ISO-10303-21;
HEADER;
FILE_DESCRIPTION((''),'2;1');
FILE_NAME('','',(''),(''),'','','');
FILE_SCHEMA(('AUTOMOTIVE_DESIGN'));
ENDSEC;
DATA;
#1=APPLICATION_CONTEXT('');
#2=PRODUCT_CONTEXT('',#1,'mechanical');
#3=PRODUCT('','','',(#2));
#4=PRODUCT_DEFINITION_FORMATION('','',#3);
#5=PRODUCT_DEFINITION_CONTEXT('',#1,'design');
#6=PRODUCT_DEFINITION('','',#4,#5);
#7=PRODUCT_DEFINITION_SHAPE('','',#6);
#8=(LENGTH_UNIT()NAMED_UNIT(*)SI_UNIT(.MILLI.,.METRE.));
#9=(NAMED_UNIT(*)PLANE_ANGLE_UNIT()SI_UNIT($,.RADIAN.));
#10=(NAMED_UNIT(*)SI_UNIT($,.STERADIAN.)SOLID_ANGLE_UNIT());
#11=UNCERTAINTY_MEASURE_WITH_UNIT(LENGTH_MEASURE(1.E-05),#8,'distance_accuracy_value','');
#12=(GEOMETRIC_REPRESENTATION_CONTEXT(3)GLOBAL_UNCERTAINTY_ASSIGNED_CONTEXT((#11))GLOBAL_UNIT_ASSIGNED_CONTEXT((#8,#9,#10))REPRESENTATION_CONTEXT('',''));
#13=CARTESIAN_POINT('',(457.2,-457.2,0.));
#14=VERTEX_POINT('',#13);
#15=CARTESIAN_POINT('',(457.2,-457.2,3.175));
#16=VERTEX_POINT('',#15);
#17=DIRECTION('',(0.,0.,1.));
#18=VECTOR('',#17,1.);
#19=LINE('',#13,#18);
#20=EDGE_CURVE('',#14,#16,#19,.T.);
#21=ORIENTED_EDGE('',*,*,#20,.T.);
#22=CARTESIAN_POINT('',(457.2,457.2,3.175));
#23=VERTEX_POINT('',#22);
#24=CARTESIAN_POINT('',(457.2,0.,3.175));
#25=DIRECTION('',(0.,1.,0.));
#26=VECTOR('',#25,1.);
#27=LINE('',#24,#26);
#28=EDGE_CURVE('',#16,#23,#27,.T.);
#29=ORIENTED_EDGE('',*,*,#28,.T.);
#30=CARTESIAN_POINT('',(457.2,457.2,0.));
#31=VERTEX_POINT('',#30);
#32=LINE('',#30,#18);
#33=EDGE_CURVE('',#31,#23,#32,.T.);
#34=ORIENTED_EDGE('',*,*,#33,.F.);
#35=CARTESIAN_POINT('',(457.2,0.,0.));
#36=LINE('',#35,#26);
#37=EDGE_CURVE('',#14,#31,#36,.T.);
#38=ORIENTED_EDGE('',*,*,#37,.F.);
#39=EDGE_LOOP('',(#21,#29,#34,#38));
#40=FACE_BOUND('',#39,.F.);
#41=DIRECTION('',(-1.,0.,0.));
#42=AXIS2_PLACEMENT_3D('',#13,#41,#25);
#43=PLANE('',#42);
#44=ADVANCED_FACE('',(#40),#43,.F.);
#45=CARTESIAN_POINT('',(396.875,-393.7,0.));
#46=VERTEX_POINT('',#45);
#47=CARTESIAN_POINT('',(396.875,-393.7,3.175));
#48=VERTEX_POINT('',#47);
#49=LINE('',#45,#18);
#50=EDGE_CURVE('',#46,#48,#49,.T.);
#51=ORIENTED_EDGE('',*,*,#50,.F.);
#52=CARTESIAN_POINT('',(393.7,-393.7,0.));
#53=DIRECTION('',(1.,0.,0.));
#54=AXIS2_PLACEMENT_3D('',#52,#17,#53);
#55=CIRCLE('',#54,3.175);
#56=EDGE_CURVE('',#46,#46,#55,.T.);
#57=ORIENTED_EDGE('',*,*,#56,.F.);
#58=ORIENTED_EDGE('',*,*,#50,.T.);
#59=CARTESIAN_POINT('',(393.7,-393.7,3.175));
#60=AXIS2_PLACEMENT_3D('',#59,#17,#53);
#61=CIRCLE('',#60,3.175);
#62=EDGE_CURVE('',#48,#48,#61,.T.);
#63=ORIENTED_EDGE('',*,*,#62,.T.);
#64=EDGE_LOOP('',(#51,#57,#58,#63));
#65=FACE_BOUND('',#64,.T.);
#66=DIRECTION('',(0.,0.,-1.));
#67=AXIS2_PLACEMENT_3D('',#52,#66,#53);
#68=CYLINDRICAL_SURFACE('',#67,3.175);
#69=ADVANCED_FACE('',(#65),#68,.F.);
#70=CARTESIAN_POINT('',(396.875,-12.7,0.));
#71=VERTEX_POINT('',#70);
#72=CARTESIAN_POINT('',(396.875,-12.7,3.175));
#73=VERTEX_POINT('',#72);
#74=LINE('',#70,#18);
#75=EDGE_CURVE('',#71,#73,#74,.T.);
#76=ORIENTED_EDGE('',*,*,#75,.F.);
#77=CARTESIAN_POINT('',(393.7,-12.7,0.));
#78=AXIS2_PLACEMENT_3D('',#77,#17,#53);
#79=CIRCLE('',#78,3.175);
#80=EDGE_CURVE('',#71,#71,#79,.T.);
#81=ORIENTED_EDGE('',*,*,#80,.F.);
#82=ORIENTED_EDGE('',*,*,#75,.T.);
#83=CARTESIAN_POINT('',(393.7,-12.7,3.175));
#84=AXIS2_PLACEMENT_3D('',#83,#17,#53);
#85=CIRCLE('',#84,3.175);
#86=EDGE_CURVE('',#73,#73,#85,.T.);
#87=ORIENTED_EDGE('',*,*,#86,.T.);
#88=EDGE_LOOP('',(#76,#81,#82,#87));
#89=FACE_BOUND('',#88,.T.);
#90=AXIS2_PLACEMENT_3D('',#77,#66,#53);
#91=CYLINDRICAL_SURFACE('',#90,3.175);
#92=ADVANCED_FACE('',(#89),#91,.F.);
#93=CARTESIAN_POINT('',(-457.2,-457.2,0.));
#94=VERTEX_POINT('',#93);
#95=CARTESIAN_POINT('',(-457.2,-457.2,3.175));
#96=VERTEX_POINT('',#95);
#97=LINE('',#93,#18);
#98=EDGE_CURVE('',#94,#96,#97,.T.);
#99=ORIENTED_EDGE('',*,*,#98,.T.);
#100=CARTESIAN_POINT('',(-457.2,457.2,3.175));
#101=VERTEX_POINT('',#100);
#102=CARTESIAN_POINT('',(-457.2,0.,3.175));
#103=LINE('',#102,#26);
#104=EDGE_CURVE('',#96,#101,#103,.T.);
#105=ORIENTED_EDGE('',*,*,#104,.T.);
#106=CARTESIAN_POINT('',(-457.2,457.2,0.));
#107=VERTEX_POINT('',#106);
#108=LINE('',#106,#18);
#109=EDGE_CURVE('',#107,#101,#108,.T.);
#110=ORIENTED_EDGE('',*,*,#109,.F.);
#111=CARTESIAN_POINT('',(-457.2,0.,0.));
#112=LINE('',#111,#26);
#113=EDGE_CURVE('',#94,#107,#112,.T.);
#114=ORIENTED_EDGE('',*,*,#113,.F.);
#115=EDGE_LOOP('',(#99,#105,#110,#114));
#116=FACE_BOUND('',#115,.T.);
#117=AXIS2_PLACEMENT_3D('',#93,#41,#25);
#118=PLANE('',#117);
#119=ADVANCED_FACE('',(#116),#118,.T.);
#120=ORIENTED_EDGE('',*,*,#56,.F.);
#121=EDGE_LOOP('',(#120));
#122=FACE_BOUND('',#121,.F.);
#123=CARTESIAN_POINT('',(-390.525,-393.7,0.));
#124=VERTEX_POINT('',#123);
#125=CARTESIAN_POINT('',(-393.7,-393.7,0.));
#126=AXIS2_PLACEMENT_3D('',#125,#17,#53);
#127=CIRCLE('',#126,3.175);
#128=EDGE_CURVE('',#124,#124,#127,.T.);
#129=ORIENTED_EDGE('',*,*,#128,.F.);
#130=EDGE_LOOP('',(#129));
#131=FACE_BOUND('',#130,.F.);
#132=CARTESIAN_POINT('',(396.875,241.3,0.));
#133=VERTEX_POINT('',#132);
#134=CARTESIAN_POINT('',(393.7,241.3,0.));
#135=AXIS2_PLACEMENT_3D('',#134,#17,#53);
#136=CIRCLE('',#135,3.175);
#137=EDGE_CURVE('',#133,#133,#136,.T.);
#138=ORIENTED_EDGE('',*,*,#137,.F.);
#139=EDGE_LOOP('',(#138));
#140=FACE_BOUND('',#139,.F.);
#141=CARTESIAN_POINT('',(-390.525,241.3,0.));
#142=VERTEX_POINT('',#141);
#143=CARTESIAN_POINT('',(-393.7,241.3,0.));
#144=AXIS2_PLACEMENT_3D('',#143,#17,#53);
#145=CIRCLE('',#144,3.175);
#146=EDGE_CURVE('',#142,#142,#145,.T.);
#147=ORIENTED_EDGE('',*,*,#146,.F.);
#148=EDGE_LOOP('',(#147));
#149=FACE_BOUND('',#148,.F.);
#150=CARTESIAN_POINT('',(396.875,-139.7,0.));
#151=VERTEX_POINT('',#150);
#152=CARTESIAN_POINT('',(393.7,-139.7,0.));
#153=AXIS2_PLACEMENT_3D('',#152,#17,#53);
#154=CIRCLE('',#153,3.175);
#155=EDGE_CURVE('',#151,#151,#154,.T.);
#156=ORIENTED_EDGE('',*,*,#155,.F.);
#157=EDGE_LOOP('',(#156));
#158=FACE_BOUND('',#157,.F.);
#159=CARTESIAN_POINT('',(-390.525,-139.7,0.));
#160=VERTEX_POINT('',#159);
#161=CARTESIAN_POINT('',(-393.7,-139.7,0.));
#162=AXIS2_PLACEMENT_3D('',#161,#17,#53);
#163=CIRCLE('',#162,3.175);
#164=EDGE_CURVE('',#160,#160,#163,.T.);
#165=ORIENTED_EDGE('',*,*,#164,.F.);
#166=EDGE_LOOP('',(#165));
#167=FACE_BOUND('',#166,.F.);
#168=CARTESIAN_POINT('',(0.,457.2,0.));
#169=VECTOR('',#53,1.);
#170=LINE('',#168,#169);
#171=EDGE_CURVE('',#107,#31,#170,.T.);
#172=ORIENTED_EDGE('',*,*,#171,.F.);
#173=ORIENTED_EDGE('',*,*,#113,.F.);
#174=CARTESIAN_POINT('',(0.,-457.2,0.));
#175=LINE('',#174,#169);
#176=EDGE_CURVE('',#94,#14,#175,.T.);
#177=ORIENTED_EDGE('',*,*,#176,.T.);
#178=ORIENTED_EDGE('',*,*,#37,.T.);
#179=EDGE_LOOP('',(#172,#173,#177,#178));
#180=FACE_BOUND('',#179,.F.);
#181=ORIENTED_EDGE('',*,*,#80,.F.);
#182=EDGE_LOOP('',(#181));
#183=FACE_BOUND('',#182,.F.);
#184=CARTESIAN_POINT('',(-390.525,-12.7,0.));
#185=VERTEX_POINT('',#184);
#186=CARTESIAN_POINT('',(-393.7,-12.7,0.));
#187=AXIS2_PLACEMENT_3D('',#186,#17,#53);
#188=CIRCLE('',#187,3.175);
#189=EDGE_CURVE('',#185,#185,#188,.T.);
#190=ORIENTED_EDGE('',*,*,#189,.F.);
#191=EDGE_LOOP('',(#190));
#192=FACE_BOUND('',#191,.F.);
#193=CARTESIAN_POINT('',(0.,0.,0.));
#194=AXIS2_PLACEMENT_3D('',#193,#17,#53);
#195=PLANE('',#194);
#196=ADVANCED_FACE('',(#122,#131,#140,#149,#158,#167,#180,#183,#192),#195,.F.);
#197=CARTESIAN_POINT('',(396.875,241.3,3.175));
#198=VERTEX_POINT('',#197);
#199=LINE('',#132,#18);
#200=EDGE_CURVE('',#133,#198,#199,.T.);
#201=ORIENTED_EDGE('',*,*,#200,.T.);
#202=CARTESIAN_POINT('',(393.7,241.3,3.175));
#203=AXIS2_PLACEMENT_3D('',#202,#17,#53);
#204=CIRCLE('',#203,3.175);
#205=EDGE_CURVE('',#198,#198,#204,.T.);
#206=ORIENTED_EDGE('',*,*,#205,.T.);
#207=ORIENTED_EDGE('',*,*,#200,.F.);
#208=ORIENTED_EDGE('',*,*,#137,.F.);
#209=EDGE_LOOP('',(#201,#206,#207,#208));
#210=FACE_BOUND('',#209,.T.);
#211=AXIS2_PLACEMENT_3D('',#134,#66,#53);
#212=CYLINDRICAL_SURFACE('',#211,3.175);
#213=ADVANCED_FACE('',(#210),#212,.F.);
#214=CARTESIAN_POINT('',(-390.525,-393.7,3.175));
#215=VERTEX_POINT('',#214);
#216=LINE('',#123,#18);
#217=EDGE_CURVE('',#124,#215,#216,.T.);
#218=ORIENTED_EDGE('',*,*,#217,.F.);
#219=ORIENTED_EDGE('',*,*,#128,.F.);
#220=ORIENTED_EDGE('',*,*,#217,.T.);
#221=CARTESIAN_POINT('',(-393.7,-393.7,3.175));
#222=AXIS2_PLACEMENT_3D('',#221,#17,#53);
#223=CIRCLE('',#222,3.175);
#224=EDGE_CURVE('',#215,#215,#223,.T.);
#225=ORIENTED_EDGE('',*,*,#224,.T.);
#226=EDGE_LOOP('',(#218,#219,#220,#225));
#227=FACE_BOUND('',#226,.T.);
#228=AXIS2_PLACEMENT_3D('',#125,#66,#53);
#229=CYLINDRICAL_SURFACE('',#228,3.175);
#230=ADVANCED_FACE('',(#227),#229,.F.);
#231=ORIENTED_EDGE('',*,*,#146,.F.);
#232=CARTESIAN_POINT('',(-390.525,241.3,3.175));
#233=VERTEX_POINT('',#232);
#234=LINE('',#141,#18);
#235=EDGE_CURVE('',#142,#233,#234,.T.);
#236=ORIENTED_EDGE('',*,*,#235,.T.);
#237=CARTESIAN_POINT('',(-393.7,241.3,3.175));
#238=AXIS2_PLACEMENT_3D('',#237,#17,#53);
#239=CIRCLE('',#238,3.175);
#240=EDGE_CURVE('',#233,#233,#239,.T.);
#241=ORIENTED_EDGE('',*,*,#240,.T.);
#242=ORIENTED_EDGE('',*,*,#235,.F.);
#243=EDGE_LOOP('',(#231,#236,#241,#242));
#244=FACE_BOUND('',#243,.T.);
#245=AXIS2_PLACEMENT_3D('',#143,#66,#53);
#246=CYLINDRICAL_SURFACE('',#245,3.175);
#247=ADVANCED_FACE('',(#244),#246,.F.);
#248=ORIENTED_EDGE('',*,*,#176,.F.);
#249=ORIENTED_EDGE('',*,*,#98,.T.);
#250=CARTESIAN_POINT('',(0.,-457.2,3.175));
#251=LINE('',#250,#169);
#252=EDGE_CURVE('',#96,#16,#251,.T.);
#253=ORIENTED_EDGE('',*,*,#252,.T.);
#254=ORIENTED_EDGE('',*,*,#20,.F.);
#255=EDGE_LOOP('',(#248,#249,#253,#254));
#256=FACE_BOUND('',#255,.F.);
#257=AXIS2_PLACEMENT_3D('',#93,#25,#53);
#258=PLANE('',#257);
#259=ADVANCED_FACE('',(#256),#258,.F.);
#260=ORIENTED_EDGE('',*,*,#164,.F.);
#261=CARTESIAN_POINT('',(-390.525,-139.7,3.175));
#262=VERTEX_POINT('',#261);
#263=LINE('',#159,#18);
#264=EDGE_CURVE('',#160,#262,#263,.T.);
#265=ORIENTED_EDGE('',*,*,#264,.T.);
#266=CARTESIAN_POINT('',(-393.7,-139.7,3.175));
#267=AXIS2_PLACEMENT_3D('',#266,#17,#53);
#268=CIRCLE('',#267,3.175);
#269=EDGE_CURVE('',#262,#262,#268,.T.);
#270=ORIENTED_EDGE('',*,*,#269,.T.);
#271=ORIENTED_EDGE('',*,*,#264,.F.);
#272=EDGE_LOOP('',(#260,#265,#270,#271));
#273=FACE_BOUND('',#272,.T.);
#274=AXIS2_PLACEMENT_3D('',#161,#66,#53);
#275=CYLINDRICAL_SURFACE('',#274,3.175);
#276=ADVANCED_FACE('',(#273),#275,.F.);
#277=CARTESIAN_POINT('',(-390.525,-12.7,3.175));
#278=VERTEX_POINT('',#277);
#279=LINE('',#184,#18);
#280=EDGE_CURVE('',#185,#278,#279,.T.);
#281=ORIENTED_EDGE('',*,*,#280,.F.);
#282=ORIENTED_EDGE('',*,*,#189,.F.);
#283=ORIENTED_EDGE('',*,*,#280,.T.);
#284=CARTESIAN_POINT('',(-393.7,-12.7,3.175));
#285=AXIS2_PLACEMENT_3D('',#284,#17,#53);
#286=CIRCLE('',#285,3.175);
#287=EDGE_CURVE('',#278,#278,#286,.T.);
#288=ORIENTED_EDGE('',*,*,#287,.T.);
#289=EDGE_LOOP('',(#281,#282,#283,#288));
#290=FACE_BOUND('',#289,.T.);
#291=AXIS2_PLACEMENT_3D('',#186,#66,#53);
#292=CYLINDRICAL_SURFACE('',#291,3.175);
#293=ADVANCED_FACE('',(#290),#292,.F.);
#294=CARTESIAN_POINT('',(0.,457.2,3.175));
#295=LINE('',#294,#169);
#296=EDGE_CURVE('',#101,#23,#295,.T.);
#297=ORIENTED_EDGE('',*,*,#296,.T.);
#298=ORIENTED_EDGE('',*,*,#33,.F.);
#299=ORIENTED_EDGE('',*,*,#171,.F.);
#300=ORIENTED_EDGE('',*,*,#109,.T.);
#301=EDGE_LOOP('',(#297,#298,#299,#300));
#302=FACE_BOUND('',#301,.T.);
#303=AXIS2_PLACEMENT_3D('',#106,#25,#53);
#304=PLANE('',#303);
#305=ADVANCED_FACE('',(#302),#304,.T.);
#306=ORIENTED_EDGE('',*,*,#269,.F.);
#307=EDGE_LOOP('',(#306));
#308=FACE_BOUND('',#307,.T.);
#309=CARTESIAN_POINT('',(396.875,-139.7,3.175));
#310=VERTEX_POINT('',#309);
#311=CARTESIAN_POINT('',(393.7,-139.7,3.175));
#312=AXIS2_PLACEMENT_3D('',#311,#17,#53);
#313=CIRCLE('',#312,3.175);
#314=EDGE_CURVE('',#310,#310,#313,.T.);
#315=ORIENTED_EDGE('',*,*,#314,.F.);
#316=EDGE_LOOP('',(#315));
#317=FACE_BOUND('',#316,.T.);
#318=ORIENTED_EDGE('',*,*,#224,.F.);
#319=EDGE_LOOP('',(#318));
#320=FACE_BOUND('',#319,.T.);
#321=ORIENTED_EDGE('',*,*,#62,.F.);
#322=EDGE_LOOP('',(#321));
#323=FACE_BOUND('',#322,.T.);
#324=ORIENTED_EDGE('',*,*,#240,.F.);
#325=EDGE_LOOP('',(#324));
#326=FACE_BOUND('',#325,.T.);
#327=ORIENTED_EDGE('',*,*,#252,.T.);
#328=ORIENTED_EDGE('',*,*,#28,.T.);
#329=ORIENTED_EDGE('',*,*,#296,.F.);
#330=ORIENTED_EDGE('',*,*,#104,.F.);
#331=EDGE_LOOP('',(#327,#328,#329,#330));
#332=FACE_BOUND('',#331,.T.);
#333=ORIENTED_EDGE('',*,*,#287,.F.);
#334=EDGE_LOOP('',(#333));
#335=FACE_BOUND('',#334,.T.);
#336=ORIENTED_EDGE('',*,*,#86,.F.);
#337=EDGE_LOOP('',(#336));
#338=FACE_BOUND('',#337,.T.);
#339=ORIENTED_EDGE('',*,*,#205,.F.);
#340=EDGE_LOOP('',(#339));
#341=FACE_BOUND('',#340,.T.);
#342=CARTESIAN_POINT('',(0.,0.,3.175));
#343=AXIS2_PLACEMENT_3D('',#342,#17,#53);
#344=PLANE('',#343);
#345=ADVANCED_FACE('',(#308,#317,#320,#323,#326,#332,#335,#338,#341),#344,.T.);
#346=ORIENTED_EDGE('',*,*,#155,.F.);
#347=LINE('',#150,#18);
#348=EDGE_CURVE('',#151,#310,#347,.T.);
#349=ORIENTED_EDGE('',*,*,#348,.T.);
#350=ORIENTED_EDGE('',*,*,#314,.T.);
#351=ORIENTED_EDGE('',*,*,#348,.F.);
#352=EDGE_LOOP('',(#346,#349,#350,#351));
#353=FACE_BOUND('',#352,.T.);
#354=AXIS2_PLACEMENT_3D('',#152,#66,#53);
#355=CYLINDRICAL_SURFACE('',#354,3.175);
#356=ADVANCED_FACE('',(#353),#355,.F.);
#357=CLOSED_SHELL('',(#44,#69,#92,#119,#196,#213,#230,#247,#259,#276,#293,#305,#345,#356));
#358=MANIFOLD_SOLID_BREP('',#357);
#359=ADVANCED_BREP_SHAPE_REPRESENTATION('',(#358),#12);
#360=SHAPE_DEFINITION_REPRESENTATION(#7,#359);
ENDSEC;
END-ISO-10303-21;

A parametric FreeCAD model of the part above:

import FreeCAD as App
import Part
import Sketcher
from FreeCAD import Vector
Q = App.Units.Quantity


def add_polygon(sketch, points):
    """Adds a closed chain of lines whose ends are joined by coincident constraints."""
    first, n = sketch.GeometryCount, len(points)
    for a, b in zip(points, points[1:] + points[:1]):
        sketch.addGeometry(Part.LineSegment(App.Vector(*a, 0), App.Vector(*b, 0)), False)
    for i in range(n):
        sketch.addConstraint(Sketcher.Constraint("Coincident", first + i, 2, first + (i + 1) % n, 1))

doc = App.newDocument("Part")
params = doc.addObject("Spreadsheet::Sheet", "Params")
for row, (alias, value) in enumerate([
    ("sketch1_diameter", "0.25 in"),
    ("sketch1_width", "36 in"),
    ("pad1_length", "0.125 in"),
], start=1):
    params.set(f"A{row}", alias)
    params.set(f"B{row}", "=" + value)
    params.setAlias(f"B{row}", alias)

body = doc.addObject("PartDesign::Body", "Body")

sketch1 = doc.addObject("Sketcher::SketchObject", "Sketch")
body.addObject(sketch1)
sketch1.AttachmentSupport = (doc.XY_Plane, [""])
sketch1.MapMode = "FlatFace"
add_polygon(sketch1, [(-457.2, 457.2), (-457.2, -457.2), (457.2, -457.2), (457.2, 457.2)])
sketch1.addGeometry(Part.Circle(Vector(-393.7, -393.7, 0), Vector(0, 0, 1), 3.2), False)
sketch1.addGeometry(Part.Circle(Vector(-393.7, -139.7, 0), Vector(0, 0, 1), 3.2), False)
sketch1.addGeometry(Part.Circle(Vector(393.7, -393.7, 0), Vector(0, 0, 1), 3.2), False)
sketch1.addGeometry(Part.Circle(Vector(393.7, -139.7, 0), Vector(0, 0, 1), 3.2), False)
sketch1.addGeometry(Part.Circle(Vector(-393.7, -12.7, 0), Vector(0, 0, 1), 3.2), False)
sketch1.addGeometry(Part.Circle(Vector(-393.7, 241.3, 0), Vector(0, 0, 1), 3.2), False)
sketch1.addGeometry(Part.Circle(Vector(393.7, -12.7, 0), Vector(0, 0, 1), 3.2), False)
sketch1.addGeometry(Part.Circle(Vector(393.7, 241.3, 0), Vector(0, 0, 1), 3.2), False)
sketch1.addConstraint(Sketcher.Constraint("Vertical", 0))
sketch1.addConstraint(Sketcher.Constraint("Horizontal", 1))
sketch1.addConstraint(Sketcher.Constraint("Vertical", 2))
sketch1.addConstraint(Sketcher.Constraint("Horizontal", 3))
sketch1.addConstraint(Sketcher.Constraint("Equal", 4, 5))
sketch1.addConstraint(Sketcher.Constraint("Equal", 5, 6))
sketch1.addConstraint(Sketcher.Constraint("Equal", 6, 7))
sketch1.addConstraint(Sketcher.Constraint("Equal", 7, 8))
sketch1.addConstraint(Sketcher.Constraint("Equal", 8, 9))
sketch1.addConstraint(Sketcher.Constraint("Equal", 9, 10))
sketch1.addConstraint(Sketcher.Constraint("Equal", 10, 11))
sketch1.addConstraint(Sketcher.Constraint("Symmetric", 0, 2, 2, 2, -1, 1))
sketch1.addConstraint(Sketcher.Constraint("Symmetric", 4, 3, 6, 3, -2))
sketch1.addConstraint(Sketcher.Constraint("Symmetric", 5, 3, 7, 3, -2))
sketch1.addConstraint(Sketcher.Constraint("Symmetric", 8, 3, 10, 3, -2))
sketch1.addConstraint(Sketcher.Constraint("Symmetric", 9, 3, 11, 3, -2))
sketch1.addConstraint(Sketcher.Constraint("Vertical", 4, 3, 5, 3))
sketch1.addConstraint(Sketcher.Constraint("Vertical", 5, 3, 8, 3))
sketch1.addConstraint(Sketcher.Constraint("Vertical", 8, 3, 9, 3))
sketch1.addConstraint(Sketcher.Constraint("Equal", 3, 0))
sketch1.addConstraint(Sketcher.Constraint("Diameter", 4, Q("0.25 in")))
sketch1.addConstraint(Sketcher.Constraint("DistanceX", 1, 1, 1, 2, Q("36 in")))
sketch1.addConstraint(Sketcher.Constraint("DistanceY", 4, 3, 5, 3, Q("10 in")))
sketch1.addConstraint(Sketcher.Constraint("DistanceX", 4, 3, 6, 3, Q("31 in")))
sketch1.addConstraint(Sketcher.Constraint("DistanceY", 5, 3, 8, 3, Q("5 in")))
sketch1.addConstraint(Sketcher.Constraint("DistanceY", 8, 3, 9, 3, Q("10 in")))
sketch1.addConstraint(Sketcher.Constraint("DistanceY", 4, 3, -1, 1, Q("15.5 in")))
sketch1.setExpression("Constraints[24]", "Params.sketch1_diameter")
sketch1.setExpression("Constraints[25]", "Params.sketch1_width")
pad1 = doc.addObject("PartDesign::Pad", "Pad")
body.addObject(pad1)
pad1.Profile = sketch1
pad1.setExpression("Length", "Params.pad1_length")

doc.recompute()
